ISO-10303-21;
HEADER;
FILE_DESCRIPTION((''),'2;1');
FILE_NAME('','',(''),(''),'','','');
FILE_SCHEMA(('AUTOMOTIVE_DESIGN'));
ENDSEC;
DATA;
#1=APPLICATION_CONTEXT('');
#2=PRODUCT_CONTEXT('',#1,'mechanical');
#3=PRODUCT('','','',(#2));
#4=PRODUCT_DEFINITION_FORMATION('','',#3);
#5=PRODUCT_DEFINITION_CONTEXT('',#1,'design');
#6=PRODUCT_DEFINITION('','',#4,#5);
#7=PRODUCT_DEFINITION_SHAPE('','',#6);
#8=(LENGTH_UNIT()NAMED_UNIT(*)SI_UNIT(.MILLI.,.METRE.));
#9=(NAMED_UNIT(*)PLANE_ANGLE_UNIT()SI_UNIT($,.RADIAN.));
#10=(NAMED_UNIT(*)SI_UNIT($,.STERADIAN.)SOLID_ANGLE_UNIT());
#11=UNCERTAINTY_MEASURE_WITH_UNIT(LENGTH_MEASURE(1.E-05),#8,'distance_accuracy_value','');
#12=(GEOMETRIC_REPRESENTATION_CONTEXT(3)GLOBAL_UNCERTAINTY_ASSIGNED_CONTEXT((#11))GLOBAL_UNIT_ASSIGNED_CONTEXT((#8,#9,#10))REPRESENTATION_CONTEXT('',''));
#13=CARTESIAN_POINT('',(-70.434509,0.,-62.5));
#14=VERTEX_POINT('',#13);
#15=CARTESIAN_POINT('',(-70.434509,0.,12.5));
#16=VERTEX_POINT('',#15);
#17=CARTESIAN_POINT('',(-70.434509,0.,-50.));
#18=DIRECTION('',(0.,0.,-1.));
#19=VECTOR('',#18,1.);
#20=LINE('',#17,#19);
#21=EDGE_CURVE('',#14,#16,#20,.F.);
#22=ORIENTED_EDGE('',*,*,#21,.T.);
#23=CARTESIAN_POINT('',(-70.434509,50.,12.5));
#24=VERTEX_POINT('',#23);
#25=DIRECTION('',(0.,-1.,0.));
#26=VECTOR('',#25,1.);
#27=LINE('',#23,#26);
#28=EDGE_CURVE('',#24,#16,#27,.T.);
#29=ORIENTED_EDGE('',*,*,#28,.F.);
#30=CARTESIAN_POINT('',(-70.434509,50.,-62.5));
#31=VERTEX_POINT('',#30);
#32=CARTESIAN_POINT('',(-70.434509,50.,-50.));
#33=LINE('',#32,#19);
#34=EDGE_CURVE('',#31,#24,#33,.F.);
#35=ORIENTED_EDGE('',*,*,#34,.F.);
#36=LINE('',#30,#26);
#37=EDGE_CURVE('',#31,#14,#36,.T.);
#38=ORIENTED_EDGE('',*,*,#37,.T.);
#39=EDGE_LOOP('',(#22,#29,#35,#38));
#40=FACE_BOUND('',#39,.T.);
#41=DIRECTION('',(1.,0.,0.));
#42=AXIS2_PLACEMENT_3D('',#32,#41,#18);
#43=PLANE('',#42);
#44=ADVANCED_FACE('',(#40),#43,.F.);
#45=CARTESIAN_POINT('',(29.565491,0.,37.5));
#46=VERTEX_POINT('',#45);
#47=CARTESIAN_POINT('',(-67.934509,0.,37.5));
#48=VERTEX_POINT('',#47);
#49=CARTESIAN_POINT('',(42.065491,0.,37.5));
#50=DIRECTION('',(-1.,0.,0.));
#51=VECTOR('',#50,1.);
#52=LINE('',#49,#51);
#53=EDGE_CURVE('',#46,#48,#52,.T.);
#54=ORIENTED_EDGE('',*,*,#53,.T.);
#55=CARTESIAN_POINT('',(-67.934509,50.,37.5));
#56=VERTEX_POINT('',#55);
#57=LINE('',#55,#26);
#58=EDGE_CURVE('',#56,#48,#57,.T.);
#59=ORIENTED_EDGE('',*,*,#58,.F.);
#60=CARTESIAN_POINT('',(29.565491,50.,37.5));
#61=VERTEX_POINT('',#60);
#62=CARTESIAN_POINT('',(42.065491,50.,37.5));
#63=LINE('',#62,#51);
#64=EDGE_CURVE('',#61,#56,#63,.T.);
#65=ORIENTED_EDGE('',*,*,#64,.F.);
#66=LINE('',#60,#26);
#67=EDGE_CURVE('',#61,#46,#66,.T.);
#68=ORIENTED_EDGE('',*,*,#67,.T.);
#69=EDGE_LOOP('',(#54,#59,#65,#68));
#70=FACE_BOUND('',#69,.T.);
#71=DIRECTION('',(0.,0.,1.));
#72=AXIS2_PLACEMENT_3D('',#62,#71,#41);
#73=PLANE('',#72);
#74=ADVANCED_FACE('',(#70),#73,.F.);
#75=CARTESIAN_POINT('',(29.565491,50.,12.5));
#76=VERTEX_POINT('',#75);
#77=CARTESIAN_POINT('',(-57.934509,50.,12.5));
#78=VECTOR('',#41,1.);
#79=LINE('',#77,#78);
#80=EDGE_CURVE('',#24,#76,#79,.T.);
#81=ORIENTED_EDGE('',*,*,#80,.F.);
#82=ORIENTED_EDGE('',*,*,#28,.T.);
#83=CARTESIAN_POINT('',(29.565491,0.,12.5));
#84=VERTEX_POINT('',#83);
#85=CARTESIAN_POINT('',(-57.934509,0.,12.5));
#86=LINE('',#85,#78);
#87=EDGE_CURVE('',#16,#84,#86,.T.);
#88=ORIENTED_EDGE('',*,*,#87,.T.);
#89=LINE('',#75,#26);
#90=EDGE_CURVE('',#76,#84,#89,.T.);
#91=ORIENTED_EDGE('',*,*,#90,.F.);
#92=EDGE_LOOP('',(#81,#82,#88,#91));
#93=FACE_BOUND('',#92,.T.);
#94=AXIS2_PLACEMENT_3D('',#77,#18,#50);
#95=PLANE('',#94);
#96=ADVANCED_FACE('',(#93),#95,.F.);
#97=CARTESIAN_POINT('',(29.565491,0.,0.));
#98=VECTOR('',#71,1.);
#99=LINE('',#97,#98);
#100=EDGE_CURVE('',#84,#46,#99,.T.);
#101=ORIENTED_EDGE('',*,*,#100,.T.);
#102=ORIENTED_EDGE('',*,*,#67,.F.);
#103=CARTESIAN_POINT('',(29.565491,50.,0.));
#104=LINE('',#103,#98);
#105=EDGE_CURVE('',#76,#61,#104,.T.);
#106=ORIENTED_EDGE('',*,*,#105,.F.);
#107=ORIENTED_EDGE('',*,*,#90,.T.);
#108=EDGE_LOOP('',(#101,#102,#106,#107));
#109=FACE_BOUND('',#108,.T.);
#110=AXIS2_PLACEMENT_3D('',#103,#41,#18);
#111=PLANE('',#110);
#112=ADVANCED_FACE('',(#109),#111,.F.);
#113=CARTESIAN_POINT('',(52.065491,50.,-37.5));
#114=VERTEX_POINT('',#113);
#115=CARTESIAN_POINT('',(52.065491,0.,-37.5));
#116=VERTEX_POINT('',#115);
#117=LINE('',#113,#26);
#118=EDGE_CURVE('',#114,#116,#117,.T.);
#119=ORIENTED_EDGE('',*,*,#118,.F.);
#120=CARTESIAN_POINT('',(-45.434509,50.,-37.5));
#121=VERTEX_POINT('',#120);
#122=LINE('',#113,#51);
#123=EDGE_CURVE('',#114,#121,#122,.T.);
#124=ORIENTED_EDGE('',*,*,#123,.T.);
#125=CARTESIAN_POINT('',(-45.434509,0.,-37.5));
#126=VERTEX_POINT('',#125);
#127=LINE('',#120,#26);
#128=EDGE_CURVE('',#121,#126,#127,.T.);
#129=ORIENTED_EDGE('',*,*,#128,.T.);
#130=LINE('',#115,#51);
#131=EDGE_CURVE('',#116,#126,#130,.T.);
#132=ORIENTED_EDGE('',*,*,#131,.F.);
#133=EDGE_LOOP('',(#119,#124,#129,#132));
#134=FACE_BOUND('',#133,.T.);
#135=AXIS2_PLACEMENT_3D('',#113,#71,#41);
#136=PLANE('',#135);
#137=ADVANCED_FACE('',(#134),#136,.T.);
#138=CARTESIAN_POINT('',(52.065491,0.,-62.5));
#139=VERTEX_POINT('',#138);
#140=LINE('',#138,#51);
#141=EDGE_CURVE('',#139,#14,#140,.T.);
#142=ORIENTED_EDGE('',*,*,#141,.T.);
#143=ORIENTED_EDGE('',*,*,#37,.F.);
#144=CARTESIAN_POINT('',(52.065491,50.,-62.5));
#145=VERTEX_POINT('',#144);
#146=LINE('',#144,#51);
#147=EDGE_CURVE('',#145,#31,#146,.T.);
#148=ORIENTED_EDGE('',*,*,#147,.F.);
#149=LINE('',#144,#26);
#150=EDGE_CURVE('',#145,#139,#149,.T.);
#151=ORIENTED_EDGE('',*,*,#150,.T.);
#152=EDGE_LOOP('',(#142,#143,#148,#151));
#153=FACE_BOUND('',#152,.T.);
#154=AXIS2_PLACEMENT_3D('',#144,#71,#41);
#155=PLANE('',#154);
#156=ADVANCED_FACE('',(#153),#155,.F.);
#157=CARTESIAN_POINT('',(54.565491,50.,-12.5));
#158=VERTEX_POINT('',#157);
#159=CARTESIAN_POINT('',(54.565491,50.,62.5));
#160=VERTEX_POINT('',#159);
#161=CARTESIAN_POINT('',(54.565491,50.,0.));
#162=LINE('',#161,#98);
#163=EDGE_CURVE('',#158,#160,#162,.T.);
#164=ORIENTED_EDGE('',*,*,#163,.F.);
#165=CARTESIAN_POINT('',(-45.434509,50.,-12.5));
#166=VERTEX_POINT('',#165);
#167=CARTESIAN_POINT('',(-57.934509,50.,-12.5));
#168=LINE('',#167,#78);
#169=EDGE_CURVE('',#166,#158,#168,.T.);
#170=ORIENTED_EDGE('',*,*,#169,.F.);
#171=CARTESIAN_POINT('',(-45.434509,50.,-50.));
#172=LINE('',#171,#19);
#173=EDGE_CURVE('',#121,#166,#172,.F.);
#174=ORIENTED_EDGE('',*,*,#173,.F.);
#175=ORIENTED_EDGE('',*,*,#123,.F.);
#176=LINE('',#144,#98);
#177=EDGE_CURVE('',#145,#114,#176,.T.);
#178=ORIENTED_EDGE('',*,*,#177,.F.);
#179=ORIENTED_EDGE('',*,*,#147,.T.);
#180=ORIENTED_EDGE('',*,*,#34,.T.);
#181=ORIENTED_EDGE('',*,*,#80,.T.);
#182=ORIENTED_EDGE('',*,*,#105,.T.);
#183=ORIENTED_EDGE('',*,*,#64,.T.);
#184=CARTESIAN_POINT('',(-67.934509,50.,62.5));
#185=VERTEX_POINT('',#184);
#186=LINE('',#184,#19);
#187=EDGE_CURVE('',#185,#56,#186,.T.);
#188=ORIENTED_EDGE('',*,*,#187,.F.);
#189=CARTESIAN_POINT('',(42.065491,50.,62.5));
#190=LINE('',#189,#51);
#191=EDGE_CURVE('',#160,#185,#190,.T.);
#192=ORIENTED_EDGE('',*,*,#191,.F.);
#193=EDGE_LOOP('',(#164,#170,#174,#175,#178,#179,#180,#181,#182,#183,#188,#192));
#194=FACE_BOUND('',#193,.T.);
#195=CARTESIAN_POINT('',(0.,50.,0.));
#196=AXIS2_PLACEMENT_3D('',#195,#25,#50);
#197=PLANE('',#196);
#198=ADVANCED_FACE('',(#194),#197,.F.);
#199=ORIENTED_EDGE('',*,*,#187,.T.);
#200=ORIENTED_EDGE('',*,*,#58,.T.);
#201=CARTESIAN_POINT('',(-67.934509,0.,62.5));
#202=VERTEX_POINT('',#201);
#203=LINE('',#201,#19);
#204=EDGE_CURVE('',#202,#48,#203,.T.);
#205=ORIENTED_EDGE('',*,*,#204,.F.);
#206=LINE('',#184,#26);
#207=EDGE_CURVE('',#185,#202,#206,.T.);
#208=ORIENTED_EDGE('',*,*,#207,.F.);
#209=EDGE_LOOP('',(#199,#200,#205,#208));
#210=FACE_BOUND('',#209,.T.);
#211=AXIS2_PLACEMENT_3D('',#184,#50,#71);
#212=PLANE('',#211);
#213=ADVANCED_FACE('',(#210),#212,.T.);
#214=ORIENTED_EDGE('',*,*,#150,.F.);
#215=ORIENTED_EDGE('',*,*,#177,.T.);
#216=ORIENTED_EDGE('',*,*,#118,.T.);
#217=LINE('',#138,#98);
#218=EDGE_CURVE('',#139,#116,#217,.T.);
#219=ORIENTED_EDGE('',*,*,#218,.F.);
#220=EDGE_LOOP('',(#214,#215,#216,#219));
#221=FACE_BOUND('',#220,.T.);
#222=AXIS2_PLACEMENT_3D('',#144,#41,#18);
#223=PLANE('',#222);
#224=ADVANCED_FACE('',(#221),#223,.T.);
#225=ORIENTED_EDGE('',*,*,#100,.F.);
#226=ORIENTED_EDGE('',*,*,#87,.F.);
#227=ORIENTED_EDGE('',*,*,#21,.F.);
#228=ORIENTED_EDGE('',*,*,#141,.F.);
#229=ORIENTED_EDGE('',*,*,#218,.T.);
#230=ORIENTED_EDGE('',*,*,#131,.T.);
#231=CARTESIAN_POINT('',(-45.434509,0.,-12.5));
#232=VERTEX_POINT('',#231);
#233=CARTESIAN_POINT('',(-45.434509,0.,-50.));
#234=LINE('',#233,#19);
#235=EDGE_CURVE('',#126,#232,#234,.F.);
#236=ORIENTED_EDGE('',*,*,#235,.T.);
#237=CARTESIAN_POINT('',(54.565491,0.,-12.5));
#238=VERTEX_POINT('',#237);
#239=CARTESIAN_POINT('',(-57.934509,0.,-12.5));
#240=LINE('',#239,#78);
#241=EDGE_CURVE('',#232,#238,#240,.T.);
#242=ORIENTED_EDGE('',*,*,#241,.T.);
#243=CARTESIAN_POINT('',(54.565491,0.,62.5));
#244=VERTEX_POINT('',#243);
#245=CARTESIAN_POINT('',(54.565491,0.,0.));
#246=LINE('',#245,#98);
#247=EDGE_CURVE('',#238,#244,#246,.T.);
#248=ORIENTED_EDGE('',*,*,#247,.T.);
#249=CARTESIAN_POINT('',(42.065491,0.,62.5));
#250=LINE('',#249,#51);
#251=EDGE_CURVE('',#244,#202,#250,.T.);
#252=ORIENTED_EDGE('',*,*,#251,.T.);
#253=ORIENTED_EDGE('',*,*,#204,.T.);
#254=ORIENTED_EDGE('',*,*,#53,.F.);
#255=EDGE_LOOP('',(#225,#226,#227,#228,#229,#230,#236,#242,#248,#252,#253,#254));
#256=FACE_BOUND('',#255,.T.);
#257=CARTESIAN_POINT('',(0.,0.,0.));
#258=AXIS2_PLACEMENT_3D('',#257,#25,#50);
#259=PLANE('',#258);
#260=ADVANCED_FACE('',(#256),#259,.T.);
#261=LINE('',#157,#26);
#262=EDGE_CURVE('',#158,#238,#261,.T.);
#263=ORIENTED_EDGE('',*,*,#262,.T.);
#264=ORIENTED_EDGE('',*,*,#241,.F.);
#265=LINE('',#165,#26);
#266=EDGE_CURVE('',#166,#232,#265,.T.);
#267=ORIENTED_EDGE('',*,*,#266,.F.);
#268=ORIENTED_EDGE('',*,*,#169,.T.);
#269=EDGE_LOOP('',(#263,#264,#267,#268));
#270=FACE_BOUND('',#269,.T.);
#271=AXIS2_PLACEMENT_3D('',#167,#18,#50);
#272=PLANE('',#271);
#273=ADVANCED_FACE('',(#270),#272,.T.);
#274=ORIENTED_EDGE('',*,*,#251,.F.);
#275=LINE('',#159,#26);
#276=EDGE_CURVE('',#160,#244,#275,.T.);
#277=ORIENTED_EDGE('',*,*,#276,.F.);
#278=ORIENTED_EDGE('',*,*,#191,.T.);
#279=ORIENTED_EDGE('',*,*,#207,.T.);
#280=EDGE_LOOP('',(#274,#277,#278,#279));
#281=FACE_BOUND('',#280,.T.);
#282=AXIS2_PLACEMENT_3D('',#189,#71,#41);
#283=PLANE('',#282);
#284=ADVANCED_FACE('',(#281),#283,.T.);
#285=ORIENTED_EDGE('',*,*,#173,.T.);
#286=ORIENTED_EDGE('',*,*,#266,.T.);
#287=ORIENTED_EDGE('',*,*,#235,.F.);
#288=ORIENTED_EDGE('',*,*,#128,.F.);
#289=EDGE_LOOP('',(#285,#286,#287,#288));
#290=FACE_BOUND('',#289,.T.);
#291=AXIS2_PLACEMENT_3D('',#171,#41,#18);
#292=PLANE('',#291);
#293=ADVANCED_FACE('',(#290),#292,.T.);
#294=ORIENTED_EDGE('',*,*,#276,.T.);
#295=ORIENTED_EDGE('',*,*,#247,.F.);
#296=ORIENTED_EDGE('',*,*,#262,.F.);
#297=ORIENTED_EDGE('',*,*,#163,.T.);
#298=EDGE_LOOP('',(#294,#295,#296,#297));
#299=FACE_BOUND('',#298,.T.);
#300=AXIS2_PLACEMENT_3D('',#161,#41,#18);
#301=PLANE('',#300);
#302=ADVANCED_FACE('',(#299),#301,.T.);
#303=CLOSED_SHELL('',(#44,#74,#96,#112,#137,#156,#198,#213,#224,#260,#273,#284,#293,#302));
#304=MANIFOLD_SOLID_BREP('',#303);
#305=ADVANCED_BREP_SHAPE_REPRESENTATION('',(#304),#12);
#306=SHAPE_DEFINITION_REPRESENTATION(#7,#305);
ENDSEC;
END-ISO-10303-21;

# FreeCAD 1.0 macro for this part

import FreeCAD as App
import Part
import Sketcher

V = App.Vector
Q = App.Units.Quantity


def add_polygon(sketch, points):
    """Adds a closed chain of lines whose ends are joined by coincident constraints."""
    first, n = sketch.GeometryCount, len(points)
    for a, b in zip(points, points[1:] + points[:1]):
        sketch.addGeometry(Part.LineSegment(App.Vector(*a, 0), App.Vector(*b, 0)), False)
    for i in range(n):
        sketch.addConstraint(Sketcher.Constraint("Coincident", first + i, 2, first + (i + 1) % n, 1))

doc = App.newDocument("Part")
body = doc.addObject("PartDesign::Body", "Body")

sketch1 = body.newObject("Sketcher::SketchObject", "Sketch")
sketch1.AttachmentSupport = (doc.getObject("XZ_Plane"), [""])
sketch1.MapMode = "FlatFace"
add_polygon(sketch1, [(52, -62), (-70, -62), (-70, 12), (30, 12), (30, 38), (-68, 38), (-68, 62), (55, 62), (55, -12), (-45, -12), (-45, -38), (52, -38)])
sketch1.addConstraint([
    Sketcher.Constraint("Horizontal", 0),
    Sketcher.Constraint("Vertical", 1),
    Sketcher.Constraint("Horizontal", 2),
    Sketcher.Constraint("Vertical", 3),
    Sketcher.Constraint("Horizontal", 4),
    Sketcher.Constraint("Vertical", 5),
    Sketcher.Constraint("Horizontal", 6),
    Sketcher.Constraint("Vertical", 7),
    Sketcher.Constraint("Horizontal", 8),
    Sketcher.Constraint("Vertical", 9),
    Sketcher.Constraint("Horizontal", 10),
    Sketcher.Constraint("Vertical", 11),
    Sketcher.Constraint("Equal", 0, 6),
    Sketcher.Constraint("Equal", 2, 8),
    Sketcher.Constraint("Equal", 3, 5),
    Sketcher.Constraint("Equal", 1, 7),
    Sketcher.Constraint("Equal", 5, 9),
    Sketcher.Constraint("DistanceX", 2, 1, 2, 2, Q("100 mm")),
    Sketcher.Constraint("DistanceY", 1, 1, 1, 2, Q("75 mm")),
    Sketcher.Constraint("DistanceY", 3, 1, 3, 2, Q("25 mm")),
    Sketcher.Constraint("DistanceX", 0, 2, 0, 1, Q("122.5 mm")),
    Sketcher.Constraint("DistanceX", 4, 2, 4, 1, Q("97.5 mm")),
    Sketcher.Constraint("DistanceY", 0, 2, -1, 1, Q("62.5 mm")),
    Sketcher.Constraint("DistanceX", 0, 2, -1, 1, Q("70.434509 mm")),
])
pad1 = body.newObject("PartDesign::Pad", "Pad")
pad1.Profile = sketch1
pad1.Length = 50
pad1.Reversed = True

doc.recompute()
